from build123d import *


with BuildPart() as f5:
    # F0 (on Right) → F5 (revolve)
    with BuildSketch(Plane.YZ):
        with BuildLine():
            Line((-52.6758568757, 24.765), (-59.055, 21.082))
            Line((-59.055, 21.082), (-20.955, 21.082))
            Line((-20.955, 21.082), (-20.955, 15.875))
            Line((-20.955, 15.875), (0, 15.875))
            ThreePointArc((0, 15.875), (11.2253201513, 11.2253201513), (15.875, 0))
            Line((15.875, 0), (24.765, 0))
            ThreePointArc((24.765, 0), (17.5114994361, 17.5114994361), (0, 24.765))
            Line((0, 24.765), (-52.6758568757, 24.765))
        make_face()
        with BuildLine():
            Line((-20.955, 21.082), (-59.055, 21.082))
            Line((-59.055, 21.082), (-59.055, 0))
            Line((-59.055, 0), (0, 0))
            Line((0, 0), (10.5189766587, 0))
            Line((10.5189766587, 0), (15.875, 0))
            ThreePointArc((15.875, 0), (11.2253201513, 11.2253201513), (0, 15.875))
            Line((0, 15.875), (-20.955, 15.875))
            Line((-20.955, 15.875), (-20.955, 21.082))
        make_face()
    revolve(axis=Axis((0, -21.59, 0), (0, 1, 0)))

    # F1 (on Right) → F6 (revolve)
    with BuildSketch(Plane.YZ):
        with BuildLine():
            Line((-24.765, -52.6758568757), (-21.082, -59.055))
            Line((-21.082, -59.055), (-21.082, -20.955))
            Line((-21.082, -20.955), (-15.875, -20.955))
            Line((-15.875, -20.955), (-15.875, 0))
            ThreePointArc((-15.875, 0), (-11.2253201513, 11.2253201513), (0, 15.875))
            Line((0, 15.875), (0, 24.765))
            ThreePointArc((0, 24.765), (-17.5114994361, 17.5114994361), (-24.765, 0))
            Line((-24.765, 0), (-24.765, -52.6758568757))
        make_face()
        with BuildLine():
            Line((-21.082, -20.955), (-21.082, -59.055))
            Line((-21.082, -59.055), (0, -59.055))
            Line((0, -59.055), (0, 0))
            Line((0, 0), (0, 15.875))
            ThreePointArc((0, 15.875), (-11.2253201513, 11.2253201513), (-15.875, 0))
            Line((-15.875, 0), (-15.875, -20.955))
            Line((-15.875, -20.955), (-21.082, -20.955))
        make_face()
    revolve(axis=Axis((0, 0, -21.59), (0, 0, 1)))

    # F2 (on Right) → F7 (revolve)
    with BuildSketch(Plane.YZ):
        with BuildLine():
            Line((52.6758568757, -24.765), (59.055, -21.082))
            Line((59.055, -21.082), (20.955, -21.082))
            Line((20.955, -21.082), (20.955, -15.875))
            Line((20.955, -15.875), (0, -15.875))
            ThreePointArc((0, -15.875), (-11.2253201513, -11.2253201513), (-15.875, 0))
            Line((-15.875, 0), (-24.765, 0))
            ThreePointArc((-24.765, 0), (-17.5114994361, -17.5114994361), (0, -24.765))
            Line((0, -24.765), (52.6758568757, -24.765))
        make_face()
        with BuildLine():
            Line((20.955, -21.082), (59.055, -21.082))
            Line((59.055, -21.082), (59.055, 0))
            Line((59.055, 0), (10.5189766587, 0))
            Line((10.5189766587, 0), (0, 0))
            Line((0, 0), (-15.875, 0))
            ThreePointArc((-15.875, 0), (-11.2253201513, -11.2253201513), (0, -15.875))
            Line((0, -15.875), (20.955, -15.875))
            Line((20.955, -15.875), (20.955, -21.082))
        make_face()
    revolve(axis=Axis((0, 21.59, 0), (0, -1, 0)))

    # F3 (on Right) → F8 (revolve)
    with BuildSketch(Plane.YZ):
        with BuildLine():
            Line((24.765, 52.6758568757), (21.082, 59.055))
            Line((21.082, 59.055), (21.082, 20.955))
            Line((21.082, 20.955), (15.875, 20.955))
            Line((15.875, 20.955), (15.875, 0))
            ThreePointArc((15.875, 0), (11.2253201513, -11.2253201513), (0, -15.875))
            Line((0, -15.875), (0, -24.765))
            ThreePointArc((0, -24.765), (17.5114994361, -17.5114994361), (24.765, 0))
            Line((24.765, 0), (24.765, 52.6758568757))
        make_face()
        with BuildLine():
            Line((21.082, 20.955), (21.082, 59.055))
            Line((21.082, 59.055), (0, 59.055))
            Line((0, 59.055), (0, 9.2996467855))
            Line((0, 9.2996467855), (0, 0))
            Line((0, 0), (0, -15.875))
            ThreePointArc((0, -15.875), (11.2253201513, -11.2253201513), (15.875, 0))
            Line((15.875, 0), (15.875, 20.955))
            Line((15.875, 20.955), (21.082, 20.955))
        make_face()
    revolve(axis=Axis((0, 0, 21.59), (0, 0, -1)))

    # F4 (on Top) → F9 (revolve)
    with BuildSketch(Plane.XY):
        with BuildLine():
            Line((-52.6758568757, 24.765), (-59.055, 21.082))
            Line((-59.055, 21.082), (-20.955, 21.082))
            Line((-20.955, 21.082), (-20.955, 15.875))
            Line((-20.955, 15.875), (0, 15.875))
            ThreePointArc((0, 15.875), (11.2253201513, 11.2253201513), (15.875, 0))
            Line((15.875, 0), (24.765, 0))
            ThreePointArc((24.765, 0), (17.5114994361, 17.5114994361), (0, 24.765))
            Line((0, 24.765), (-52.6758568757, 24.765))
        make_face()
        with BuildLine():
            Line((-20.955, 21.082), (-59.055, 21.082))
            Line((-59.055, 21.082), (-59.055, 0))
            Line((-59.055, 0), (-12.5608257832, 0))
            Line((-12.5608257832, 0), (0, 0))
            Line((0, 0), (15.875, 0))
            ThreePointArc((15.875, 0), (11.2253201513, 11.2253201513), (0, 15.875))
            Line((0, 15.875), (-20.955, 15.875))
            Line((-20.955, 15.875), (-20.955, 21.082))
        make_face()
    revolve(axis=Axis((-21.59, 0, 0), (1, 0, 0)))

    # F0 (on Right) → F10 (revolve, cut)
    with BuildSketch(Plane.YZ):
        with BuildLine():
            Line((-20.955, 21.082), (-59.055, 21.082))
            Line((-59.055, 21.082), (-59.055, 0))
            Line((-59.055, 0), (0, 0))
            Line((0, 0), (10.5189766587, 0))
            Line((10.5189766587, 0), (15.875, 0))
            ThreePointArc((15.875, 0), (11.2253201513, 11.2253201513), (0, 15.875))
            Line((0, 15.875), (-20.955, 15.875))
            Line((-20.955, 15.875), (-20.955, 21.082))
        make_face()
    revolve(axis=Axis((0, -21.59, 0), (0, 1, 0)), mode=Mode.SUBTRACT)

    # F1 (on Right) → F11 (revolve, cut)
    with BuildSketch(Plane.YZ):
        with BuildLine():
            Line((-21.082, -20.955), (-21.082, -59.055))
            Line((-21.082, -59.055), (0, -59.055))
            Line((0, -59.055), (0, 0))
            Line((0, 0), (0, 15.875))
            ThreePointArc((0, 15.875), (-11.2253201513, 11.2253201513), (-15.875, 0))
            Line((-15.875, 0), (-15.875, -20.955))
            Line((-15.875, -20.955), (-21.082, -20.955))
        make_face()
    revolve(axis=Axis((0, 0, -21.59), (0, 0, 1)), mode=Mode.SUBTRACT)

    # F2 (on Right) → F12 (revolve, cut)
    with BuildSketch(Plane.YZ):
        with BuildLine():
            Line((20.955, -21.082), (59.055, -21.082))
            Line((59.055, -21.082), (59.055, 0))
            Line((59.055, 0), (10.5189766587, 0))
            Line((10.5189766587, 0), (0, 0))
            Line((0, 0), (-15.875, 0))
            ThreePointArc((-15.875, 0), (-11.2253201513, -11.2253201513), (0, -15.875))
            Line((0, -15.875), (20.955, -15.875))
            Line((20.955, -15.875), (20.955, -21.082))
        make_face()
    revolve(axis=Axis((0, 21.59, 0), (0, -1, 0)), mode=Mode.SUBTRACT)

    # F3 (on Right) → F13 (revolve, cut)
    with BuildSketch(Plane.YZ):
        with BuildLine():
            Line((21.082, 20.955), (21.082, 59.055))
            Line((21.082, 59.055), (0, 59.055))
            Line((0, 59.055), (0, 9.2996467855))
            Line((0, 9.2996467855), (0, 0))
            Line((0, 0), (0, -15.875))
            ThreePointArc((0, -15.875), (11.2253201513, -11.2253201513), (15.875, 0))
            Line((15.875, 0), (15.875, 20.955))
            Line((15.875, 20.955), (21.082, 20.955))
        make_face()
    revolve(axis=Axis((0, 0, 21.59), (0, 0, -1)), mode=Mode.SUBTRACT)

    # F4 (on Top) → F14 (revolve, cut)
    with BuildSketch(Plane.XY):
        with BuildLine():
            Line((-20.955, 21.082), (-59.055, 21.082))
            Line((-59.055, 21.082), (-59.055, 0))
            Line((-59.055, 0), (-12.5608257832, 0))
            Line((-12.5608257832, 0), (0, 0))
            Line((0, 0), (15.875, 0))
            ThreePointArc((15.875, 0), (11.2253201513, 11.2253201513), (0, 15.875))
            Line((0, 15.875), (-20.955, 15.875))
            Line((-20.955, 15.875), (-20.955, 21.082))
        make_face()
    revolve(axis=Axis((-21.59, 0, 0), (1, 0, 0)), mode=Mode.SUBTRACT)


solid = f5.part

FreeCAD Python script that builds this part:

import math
import FreeCAD as App
import Part
import Sketcher
from FreeCAD import Vector
Q = App.Units.Quantity

doc = App.newDocument("Part")
body = doc.addObject("PartDesign::Body", "Body")

# Sketch on YZ plane
sketch1 = doc.addObject("Sketcher::SketchObject", "Sketch")
body.addObject(sketch1)
sketch1.AttachmentSupport = (doc.YZ_Plane, [""])
sketch1.MapMode = "FlatFace"
sketch1.addGeometry([
    Part.LineSegment(Vector(-53, 25, 0), Vector(-59, 21, 0)),  # 0
    Part.LineSegment(Vector(-59, 21, 0), Vector(-59, 0, 0)),  # 1
    Part.LineSegment(Vector(-59, 0, 0), Vector(25, 0, 0)),  # 2
    Part.ArcOfCircle(Part.Circle(Vector(0, 0, 0), Vector(0, 0, 1), 25), math.radians(0), math.radians(90)),  # 3
    Part.LineSegment(Vector(0, 25, 0), Vector(-53, 25, 0)),  # 4
], False)
sketch1.addConstraint([
    Sketcher.Constraint("Coincident", 0, 2, 1, 1),
    Sketcher.Constraint("Coincident", 1, 2, 2, 1),
    Sketcher.Constraint("Coincident", 2, 2, 3, 1),
    Sketcher.Constraint("Tangent", 3, 2, 4, 1),
    Sketcher.Constraint("Coincident", 4, 2, 0, 1),
    Sketcher.Constraint("Vertical", 1),
    Sketcher.Constraint("Horizontal", 2),
    Sketcher.Constraint("Horizontal", 4),
    Sketcher.Constraint("Coincident", 3, 3, -1, 1),
    Sketcher.Constraint("PointOnObject", 1, 2, -1),
    Sketcher.Constraint("DistanceX", 2, 1, 2, 2, Q("3.3 in")),
    Sketcher.Constraint("Angle", 0, Q("-150 deg")),
    Sketcher.Constraint("Radius", 3, Q("0.975 in")),
    Sketcher.Constraint("DistanceY", 1, 2, 1, 1, Q("0.83 in")),
])
revolution = doc.addObject("PartDesign::Revolution", "Revolution")
body.addObject(revolution)
revolution.Profile = sketch1
revolution.ReferenceAxis = (sketch1, ["H_Axis"])
revolution.Angle = 360

# Sketch on YZ plane
sketch2 = doc.addObject("Sketcher::SketchObject", "Sketch001")
body.addObject(sketch2)
sketch2.AttachmentSupport = (doc.YZ_Plane, [""])
sketch2.MapMode = "FlatFace"
sketch2.addGeometry([
    Part.LineSegment(Vector(-25, -53, 0), Vector(-21, -59, 0)),  # 0
    Part.LineSegment(Vector(-21, -59, 0), Vector(0, -59, 0)),  # 1
    Part.LineSegment(Vector(0, -59, 0), Vector(0, 25, 0)),  # 2
    Part.ArcOfCircle(Part.Circle(Vector(0, 0, 0), Vector(0, 0, 1), 25), math.radians(90), math.radians(180)),  # 3
    Part.LineSegment(Vector(-25, 0, 0), Vector(-25, -53, 0)),  # 4
], False)
sketch2.addConstraint([
    Sketcher.Constraint("Coincident", 0, 2, 1, 1),
    Sketcher.Constraint("Coincident", 1, 2, 2, 1),
    Sketcher.Constraint("Coincident", 2, 2, 3, 1),
    Sketcher.Constraint("Tangent", 3, 2, 4, 1),
    Sketcher.Constraint("Coincident", 4, 2, 0, 1),
    Sketcher.Constraint("Horizontal", 1),
    Sketcher.Constraint("Vertical", 2),
    Sketcher.Constraint("Vertical", 4),
    Sketcher.Constraint("Coincident", 3, 3, -1, 1),
    Sketcher.Constraint("PointOnObject", 1, 2, -2),
    Sketcher.Constraint("DistanceY", 2, 1, 2, 2, Q("3.3 in")),
    Sketcher.Constraint("Angle", 0, Q("-60 deg")),
    Sketcher.Constraint("Radius", 3, Q("0.975 in")),
    Sketcher.Constraint("DistanceX", 1, 1, 1, 2, Q("0.83 in")),
])
revolution2 = doc.addObject("PartDesign::Revolution", "Revolution001")
body.addObject(revolution2)
revolution2.Profile = sketch2
revolution2.ReferenceAxis = (sketch2, ["V_Axis"])
revolution2.Angle = 360

# Sketch on YZ plane
sketch3 = doc.addObject("Sketcher::SketchObject", "Sketch002")
body.addObject(sketch3)
sketch3.AttachmentSupport = (doc.YZ_Plane, [""])
sketch3.MapMode = "FlatFace"
sketch3.addGeometry([
    Part.LineSegment(Vector(53, -25, 0), Vector(59, -21, 0)),  # 0
    Part.LineSegment(Vector(59, -21, 0), Vector(59, 0, 0)),  # 1
    Part.LineSegment(Vector(59, 0, 0), Vector(-25, 0, 0)),  # 2
    Part.ArcOfCircle(Part.Circle(Vector(0, 0, 0), Vector(0, 0, 1), 25), math.radians(180), math.radians(270)),  # 3
    Part.LineSegment(Vector(0, -25, 0), Vector(53, -25, 0)),  # 4
], False)
sketch3.addConstraint([
    Sketcher.Constraint("Coincident", 0, 2, 1, 1),
    Sketcher.Constraint("Coincident", 1, 2, 2, 1),
    Sketcher.Constraint("Coincident", 2, 2, 3, 1),
    Sketcher.Constraint("Tangent", 3, 2, 4, 1),
    Sketcher.Constraint("Coincident", 4, 2, 0, 1),
    Sketcher.Constraint("Vertical", 1),
    Sketcher.Constraint("Horizontal", 2),
    Sketcher.Constraint("Horizontal", 4),
    Sketcher.Constraint("Coincident", 3, 3, -1, 1),
    Sketcher.Constraint("PointOnObject", 1, 2, -1),
    Sketcher.Constraint("DistanceX", 2, 2, 2, 1, Q("3.3 in")),
    Sketcher.Constraint("Angle", 0, Q("30 deg")),
    Sketcher.Constraint("Radius", 3, Q("0.975 in")),
    Sketcher.Constraint("DistanceY", 1, 1, 1, 2, Q("0.83 in")),
])
revolution3 = doc.addObject("PartDesign::Revolution", "Revolution002")
body.addObject(revolution3)
revolution3.Profile = sketch3
revolution3.ReferenceAxis = (sketch3, ["H_Axis"])
revolution3.Angle = 360

# Sketch on YZ plane
sketch4 = doc.addObject("Sketcher::SketchObject", "Sketch003")
body.addObject(sketch4)
sketch4.AttachmentSupport = (doc.YZ_Plane, [""])
sketch4.MapMode = "FlatFace"
sketch4.addGeometry([
    Part.LineSegment(Vector(25, 53, 0), Vector(21, 59, 0)),  # 0
    Part.LineSegment(Vector(21, 59, 0), Vector(0, 59, 0)),  # 1
    Part.LineSegment(Vector(0, 59, 0), Vector(0, -25, 0)),  # 2
    Part.ArcOfCircle(Part.Circle(Vector(0, 0, 0), Vector(0, 0, 1), 25), math.radians(-90), math.radians(0)),  # 3
    Part.LineSegment(Vector(25, 0, 0), Vector(25, 53, 0)),  # 4
], False)
sketch4.addConstraint([
    Sketcher.Constraint("Coincident", 0, 2, 1, 1),
    Sketcher.Constraint("Coincident", 1, 2, 2, 1),
    Sketcher.Constraint("Coincident", 2, 2, 3, 1),
    Sketcher.Constraint("Tangent", 3, 2, 4, 1),
    Sketcher.Constraint("Coincident", 4, 2, 0, 1),
    Sketcher.Constraint("Horizontal", 1),
    Sketcher.Constraint("Vertical", 2),
    Sketcher.Constraint("Vertical", 4),
    Sketcher.Constraint("Coincident", 3, 3, -1, 1),
    Sketcher.Constraint("PointOnObject", 1, 2, -2),
    Sketcher.Constraint("DistanceY", 2, 2, 2, 1, Q("3.3 in")),
    Sketcher.Constraint("Angle", 0, Q("120 deg")),
    Sketcher.Constraint("Radius", 3, Q("0.975 in")),
    Sketcher.Constraint("DistanceX", 1, 2, 1, 1, Q("0.83 in")),
])
revolution4 = doc.addObject("PartDesign::Revolution", "Revolution003")
body.addObject(revolution4)
revolution4.Profile = sketch4
revolution4.ReferenceAxis = (sketch4, ["V_Axis"])
revolution4.Angle = 360

# Sketch on XY plane
sketch5 = doc.addObject("Sketcher::SketchObject", "Sketch004")
body.addObject(sketch5)
sketch5.AttachmentSupport = (doc.XY_Plane, [""])
sketch5.MapMode = "FlatFace"
sketch5.addGeometry([
    Part.LineSegment(Vector(-53, 25, 0), Vector(-59, 21, 0)),  # 0
    Part.LineSegment(Vector(-59, 21, 0), Vector(-59, 0, 0)),  # 1
    Part.LineSegment(Vector(-59, 0, 0), Vector(25, 0, 0)),  # 2
    Part.ArcOfCircle(Part.Circle(Vector(0, 0, 0), Vector(0, 0, 1), 25), math.radians(0), math.radians(90)),  # 3
    Part.LineSegment(Vector(0, 25, 0), Vector(-53, 25, 0)),  # 4
], False)
sketch5.addConstraint([
    Sketcher.Constraint("Coincident", 0, 2, 1, 1),
    Sketcher.Constraint("Coincident", 1, 2, 2, 1),
    Sketcher.Constraint("Coincident", 2, 2, 3, 1),
    Sketcher.Constraint("Tangent", 3, 2, 4, 1),
    Sketcher.Constraint("Coincident", 4, 2, 0, 1),
    Sketcher.Constraint("Vertical", 1),
    Sketcher.Constraint("Horizontal", 2),
    Sketcher.Constraint("Horizontal", 4),
    Sketcher.Constraint("Coincident", 3, 3, -1, 1),
    Sketcher.Constraint("PointOnObject", 1, 2, -1),
    Sketcher.Constraint("DistanceX", 2, 1, 2, 2, Q("3.3 in")),
    Sketcher.Constraint("Angle", 0, Q("-150 deg")),
    Sketcher.Constraint("Radius", 3, Q("0.975 in")),
    Sketcher.Constraint("DistanceY", 1, 2, 1, 1, Q("0.83 in")),
])
revolution5 = doc.addObject("PartDesign::Revolution", "Revolution004")
body.addObject(revolution5)
revolution5.Profile = sketch5
revolution5.ReferenceAxis = (sketch5, ["H_Axis"])
revolution5.Angle = 360

# Sketch on YZ plane
sketch6 = doc.addObject("Sketcher::SketchObject", "Sketch005")
body.addObject(sketch6)
sketch6.AttachmentSupport = (doc.YZ_Plane, [""])
sketch6.MapMode = "FlatFace"
sketch6.addGeometry([
    Part.LineSegment(Vector(-21, 21, 0), Vector(-59, 21, 0)),  # 0
    Part.LineSegment(Vector(-59, 21, 0), Vector(-59, 0, 0)),  # 1
    Part.LineSegment(Vector(-59, 0, 0), Vector(16, 0, 0)),  # 2
    Part.ArcOfCircle(Part.Circle(Vector(0, 0, 0), Vector(0, 0, 1), 16), math.radians(0), math.radians(90)),  # 3
    Part.LineSegment(Vector(0, 16, 0), Vector(-21, 16, 0)),  # 4
    Part.LineSegment(Vector(-21, 16, 0), Vector(-21, 21, 0)),  # 5
], False)
sketch6.addConstraint([
    Sketcher.Constraint("Coincident", 0, 2, 1, 1),
    Sketcher.Constraint("Coincident", 1, 2, 2, 1),
    Sketcher.Constraint("Coincident", 2, 2, 3, 1),
    Sketcher.Constraint("Tangent", 3, 2, 4, 1),
    Sketcher.Constraint("Coincident", 4, 2, 5, 1),
    Sketcher.Constraint("Coincident", 5, 2, 0, 1),
    Sketcher.Constraint("Horizontal", 0),
    Sketcher.Constraint("Vertical", 1),
    Sketcher.Constraint("Horizontal", 2),
    Sketcher.Constraint("Horizontal", 4),
    Sketcher.Constraint("Vertical", 5),
    Sketcher.Constraint("Coincident", 3, 3, -1, 1),
    Sketcher.Constraint("PointOnObject", 1, 2, -1),
    Sketcher.Constraint("DistanceX", 0, 2, 0, 1, Q("1.5 in")),
    Sketcher.Constraint("Radius", 3, Q("0.625 in")),
    Sketcher.Constraint("DistanceX", 2, 1, 2, 2, Q("2.95 in")),
    Sketcher.Constraint("DistanceY", 1, 2, 1, 1, Q("0.83 in")),
])
groove = doc.addObject("PartDesign::Groove", "Groove")
body.addObject(groove)
groove.Profile = sketch6
groove.ReferenceAxis = (sketch6, ["H_Axis"])
groove.Angle = 360

# Sketch on YZ plane
sketch7 = doc.addObject("Sketcher::SketchObject", "Sketch006")
body.addObject(sketch7)
sketch7.AttachmentSupport = (doc.YZ_Plane, [""])
sketch7.MapMode = "FlatFace"
sketch7.addGeometry([
    Part.LineSegment(Vector(-21, -21, 0), Vector(-21, -59, 0)),  # 0
    Part.LineSegment(Vector(-21, -59, 0), Vector(0, -59, 0)),  # 1
    Part.LineSegment(Vector(0, -59, 0), Vector(0, 16, 0)),  # 2
    Part.ArcOfCircle(Part.Circle(Vector(0, 0, 0), Vector(0, 0, 1), 16), math.radians(90), math.radians(180)),  # 3
    Part.LineSegment(Vector(-16, 0, 0), Vector(-16, -21, 0)),  # 4
    Part.LineSegment(Vector(-16, -21, 0), Vector(-21, -21, 0)),  # 5
], False)
sketch7.addConstraint([
    Sketcher.Constraint("Coincident", 0, 2, 1, 1),
    Sketcher.Constraint("Coincident", 1, 2, 2, 1),
    Sketcher.Constraint("Coincident", 2, 2, 3, 1),
    Sketcher.Constraint("Tangent", 3, 2, 4, 1),
    Sketcher.Constraint("Coincident", 4, 2, 5, 1),
    Sketcher.Constraint("Coincident", 5, 2, 0, 1),
    Sketcher.Constraint("Vertical", 0),
    Sketcher.Constraint("Horizontal", 1),
    Sketcher.Constraint("Vertical", 2),
    Sketcher.Constraint("Vertical", 4),
    Sketcher.Constraint("Horizontal", 5),
    Sketcher.Constraint("Coincident", 3, 3, -1, 1),
    Sketcher.Constraint("PointOnObject", 1, 2, -2),
    Sketcher.Constraint("DistanceY", 0, 2, 0, 1, Q("1.5 in")),
    Sketcher.Constraint("Radius", 3, Q("0.625 in")),
    Sketcher.Constraint("DistanceX", 1, 1, 1, 2, Q("0.83 in")),
    Sketcher.Constraint("DistanceY", 2, 1, 2, 2, Q("2.95 in")),
])
groove2 = doc.addObject("PartDesign::Groove", "Groove001")
body.addObject(groove2)
groove2.Profile = sketch7
groove2.ReferenceAxis = (sketch7, ["V_Axis"])
groove2.Angle = 360

# Sketch on YZ plane
sketch8 = doc.addObject("Sketcher::SketchObject", "Sketch007")
body.addObject(sketch8)
sketch8.AttachmentSupport = (doc.YZ_Plane, [""])
sketch8.MapMode = "FlatFace"
sketch8.addGeometry([
    Part.LineSegment(Vector(21, -21, 0), Vector(59, -21, 0)),  # 0
    Part.LineSegment(Vector(59, -21, 0), Vector(59, 0, 0)),  # 1
    Part.LineSegment(Vector(59, 0, 0), Vector(-16, 0, 0)),  # 2
    Part.ArcOfCircle(Part.Circle(Vector(0, 0, 0), Vector(0, 0, 1), 16), math.radians(180), math.radians(270)),  # 3
    Part.LineSegment(Vector(0, -16, 0), Vector(21, -16, 0)),  # 4
    Part.LineSegment(Vector(21, -16, 0), Vector(21, -21, 0)),  # 5
], False)
sketch8.addConstraint([
    Sketcher.Constraint("Coincident", 0, 2, 1, 1),
    Sketcher.Constraint("Coincident", 1, 2, 2, 1),
    Sketcher.Constraint("Coincident", 2, 2, 3, 1),
    Sketcher.Constraint("Tangent", 3, 2, 4, 1),
    Sketcher.Constraint("Coincident", 4, 2, 5, 1),
    Sketcher.Constraint("Coincident", 5, 2, 0, 1),
    Sketcher.Constraint("Horizontal", 0),
    Sketcher.Constraint("Vertical", 1),
    Sketcher.Constraint("Horizontal", 2),
    Sketcher.Constraint("Horizontal", 4),
    Sketcher.Constraint("Vertical", 5),
    Sketcher.Constraint("Coincident", 3, 3, -1, 1),
    Sketcher.Constraint("PointOnObject", 1, 2, -1),
    Sketcher.Constraint("DistanceX", 0, 1, 0, 2, Q("1.5 in")),
    Sketcher.Constraint("Radius", 3, Q("0.625 in")),
    Sketcher.Constraint("DistanceX", 2, 2, 2, 1, Q("2.95 in")),
    Sketcher.Constraint("DistanceY", 1, 1, 1, 2, Q("0.83 in")),
])
groove3 = doc.addObject("PartDesign::Groove", "Groove002")
body.addObject(groove3)
groove3.Profile = sketch8
groove3.ReferenceAxis = (sketch8, ["H_Axis"])
groove3.Angle = 360

# Sketch on YZ plane
sketch9 = doc.addObject("Sketcher::SketchObject", "Sketch008")
body.addObject(sketch9)
sketch9.AttachmentSupport = (doc.YZ_Plane, [""])
sketch9.MapMode = "FlatFace"
sketch9.addGeometry([
    Part.LineSegment(Vector(21, 21, 0), Vector(21, 59, 0)),  # 0
    Part.LineSegment(Vector(21, 59, 0), Vector(0, 59, 0)),  # 1
    Part.LineSegment(Vector(0, 59, 0), Vector(0, -16, 0)),  # 2
    Part.ArcOfCircle(Part.Circle(Vector(0, 0, 0), Vector(0, 0, 1), 16), math.radians(-90), math.radians(0)),  # 3
    Part.LineSegment(Vector(16, 0, 0), Vector(16, 21, 0)),  # 4
    Part.LineSegment(Vector(16, 21, 0), Vector(21, 21, 0)),  # 5
], False)
sketch9.addConstraint([
    Sketcher.Constraint("Coincident", 0, 2, 1, 1),
    Sketcher.Constraint("Coincident", 1, 2, 2, 1),
    Sketcher.Constraint("Coincident", 2, 2, 3, 1),
    Sketcher.Constraint("Tangent", 3, 2, 4, 1),
    Sketcher.Constraint("Coincident", 4, 2, 5, 1),
    Sketcher.Constraint("Coincident", 5, 2, 0, 1),
    Sketcher.Constraint("Vertical", 0),
    Sketcher.Constraint("Horizontal", 1),
    Sketcher.Constraint("Vertical", 2),
    Sketcher.Constraint("Vertical", 4),
    Sketcher.Constraint("Horizontal", 5),
    Sketcher.Constraint("Coincident", 3, 3, -1, 1),
    Sketcher.Constraint("PointOnObject", 1, 2, -2),
    Sketcher.Constraint("DistanceY", 0, 1, 0, 2, Q("1.5 in")),
    Sketcher.Constraint("Radius", 3, Q("0.625 in")),
    Sketcher.Constraint("DistanceX", 1, 2, 1, 1, Q("0.83 in")),
    Sketcher.Constraint("DistanceY", 2, 2, 2, 1, Q("2.95 in")),
])
groove4 = doc.addObject("PartDesign::Groove", "Groove003")
body.addObject(groove4)
groove4.Profile = sketch9
groove4.ReferenceAxis = (sketch9, ["V_Axis"])
groove4.Angle = 360

# Sketch on XY plane
sketch10 = doc.addObject("Sketcher::SketchObject", "Sketch009")
body.addObject(sketch10)
sketch10.AttachmentSupport = (doc.XY_Plane, [""])
sketch10.MapMode = "FlatFace"
sketch10.addGeometry([
    Part.LineSegment(Vector(-21, 21, 0), Vector(-59, 21, 0)),  # 0
    Part.LineSegment(Vector(-59, 21, 0), Vector(-59, 0, 0)),  # 1
    Part.LineSegment(Vector(-59, 0, 0), Vector(16, 0, 0)),  # 2
    Part.ArcOfCircle(Part.Circle(Vector(0, 0, 0), Vector(0, 0, 1), 16), math.radians(0), math.radians(90)),  # 3
    Part.LineSegment(Vector(0, 16, 0), Vector(-21, 16, 0)),  # 4
    Part.LineSegment(Vector(-21, 16, 0), Vector(-21, 21, 0)),  # 5
], False)
sketch10.addConstraint([
    Sketcher.Constraint("Coincident", 0, 2, 1, 1),
    Sketcher.Constraint("Coincident", 1, 2, 2, 1),
    Sketcher.Constraint("Coincident", 2, 2, 3, 1),
    Sketcher.Constraint("Tangent", 3, 2, 4, 1),
    Sketcher.Constraint("Coincident", 4, 2, 5, 1),
    Sketcher.Constraint("Coincident", 5, 2, 0, 1),
    Sketcher.Constraint("Horizontal", 0),
    Sketcher.Constraint("Vertical", 1),
    Sketcher.Constraint("Horizontal", 2),
    Sketcher.Constraint("Horizontal", 4),
    Sketcher.Constraint("Vertical", 5),
    Sketcher.Constraint("Coincident", 3, 3, -1, 1),
    Sketcher.Constraint("PointOnObject", 1, 2, -1),
    Sketcher.Constraint("DistanceX", 0, 2, 0, 1, Q("1.5 in")),
    Sketcher.Constraint("Radius", 3, Q("0.625 in")),
    Sketcher.Constraint("DistanceX", 2, 1, 2, 2, Q("2.95 in")),
    Sketcher.Constraint("DistanceY", 1, 2, 1, 1, Q("0.83 in")),
])
groove5 = doc.addObject("PartDesign::Groove", "Groove004")
body.addObject(groove5)
groove5.Profile = sketch10
groove5.ReferenceAxis = (sketch10, ["H_Axis"])
groove5.Angle = 360

doc.recompute()
